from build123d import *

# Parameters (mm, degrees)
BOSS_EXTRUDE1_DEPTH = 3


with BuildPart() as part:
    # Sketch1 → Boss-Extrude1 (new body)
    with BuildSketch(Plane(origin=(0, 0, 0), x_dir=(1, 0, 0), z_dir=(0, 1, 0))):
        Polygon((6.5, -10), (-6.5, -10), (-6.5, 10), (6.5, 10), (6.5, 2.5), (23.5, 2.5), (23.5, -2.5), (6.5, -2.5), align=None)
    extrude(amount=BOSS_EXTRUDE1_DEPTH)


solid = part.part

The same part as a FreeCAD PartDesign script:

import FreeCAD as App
import Part
import Sketcher

V = App.Vector


def add_polygon(sketch, points):
    """Adds a closed chain of lines whose ends are joined by coincident constraints."""
    first, n = sketch.GeometryCount, len(points)
    for a, b in zip(points, points[1:] + points[:1]):
        sketch.addGeometry(Part.LineSegment(App.Vector(*a, 0), App.Vector(*b, 0)), False)
    for i in range(n):
        sketch.addConstraint(Sketcher.Constraint("Coincident", first + i, 2, first + (i + 1) % n, 1))

doc = App.newDocument("Part")
body = doc.addObject("PartDesign::Body", "Body")

# Sketch on XZ plane
sketch1 = doc.addObject("Sketcher::SketchObject", "Sketch")
body.addObject(sketch1)
sketch1.AttachmentSupport = (doc.XZ_Plane, [""])
sketch1.MapMode = "FlatFace"
add_polygon(sketch1, [(-6.5, 10), (6.5, 10), (6.5, 2.5), (23.5, 2.5), (23.5, -2.5), (6.5, -2.5), (6.5, -10), (-6.5, -10)])  # lines 0-7
sketch1.addConstraint(Sketcher.Constraint("Horizontal", 0))
sketch1.addConstraint(Sketcher.Constraint("Vertical", 1))
sketch1.addConstraint(Sketcher.Constraint("Horizontal", 2))
sketch1.addConstraint(Sketcher.Constraint("Vertical", 3))
sketch1.addConstraint(Sketcher.Constraint("Horizontal", 4))
sketch1.addConstraint(Sketcher.Constraint("Vertical", 5))
sketch1.addConstraint(Sketcher.Constraint("Horizontal", 6))
sketch1.addConstraint(Sketcher.Constraint("Vertical", 7))
sketch1.addConstraint(Sketcher.Constraint("Symmetric", 0, 2, 6, 2, -1, 1))
sketch1.addConstraint(Sketcher.Constraint("Symmetric", 1, 2, 4, 2, -1))
sketch1.addConstraint(Sketcher.Constraint("DistanceX", 0, 1, 0, 2, 13.0))
sketch1.addConstraint(Sketcher.Constraint("DistanceX", 2, 1, 2, 2, 17.0))
sketch1.addConstraint(Sketcher.Constraint("DistanceY", 3, 2, 3, 1, 5.0))
sketch1.addConstraint(Sketcher.Constraint("DistanceY", 7, 1, 7, 2, 20.0))
pad1 = doc.addObject("PartDesign::Pad", "Pad")
body.addObject(pad1)
pad1.Profile = sketch1
pad1.Length = 3
pad1.Reversed = True

doc.recompute()
